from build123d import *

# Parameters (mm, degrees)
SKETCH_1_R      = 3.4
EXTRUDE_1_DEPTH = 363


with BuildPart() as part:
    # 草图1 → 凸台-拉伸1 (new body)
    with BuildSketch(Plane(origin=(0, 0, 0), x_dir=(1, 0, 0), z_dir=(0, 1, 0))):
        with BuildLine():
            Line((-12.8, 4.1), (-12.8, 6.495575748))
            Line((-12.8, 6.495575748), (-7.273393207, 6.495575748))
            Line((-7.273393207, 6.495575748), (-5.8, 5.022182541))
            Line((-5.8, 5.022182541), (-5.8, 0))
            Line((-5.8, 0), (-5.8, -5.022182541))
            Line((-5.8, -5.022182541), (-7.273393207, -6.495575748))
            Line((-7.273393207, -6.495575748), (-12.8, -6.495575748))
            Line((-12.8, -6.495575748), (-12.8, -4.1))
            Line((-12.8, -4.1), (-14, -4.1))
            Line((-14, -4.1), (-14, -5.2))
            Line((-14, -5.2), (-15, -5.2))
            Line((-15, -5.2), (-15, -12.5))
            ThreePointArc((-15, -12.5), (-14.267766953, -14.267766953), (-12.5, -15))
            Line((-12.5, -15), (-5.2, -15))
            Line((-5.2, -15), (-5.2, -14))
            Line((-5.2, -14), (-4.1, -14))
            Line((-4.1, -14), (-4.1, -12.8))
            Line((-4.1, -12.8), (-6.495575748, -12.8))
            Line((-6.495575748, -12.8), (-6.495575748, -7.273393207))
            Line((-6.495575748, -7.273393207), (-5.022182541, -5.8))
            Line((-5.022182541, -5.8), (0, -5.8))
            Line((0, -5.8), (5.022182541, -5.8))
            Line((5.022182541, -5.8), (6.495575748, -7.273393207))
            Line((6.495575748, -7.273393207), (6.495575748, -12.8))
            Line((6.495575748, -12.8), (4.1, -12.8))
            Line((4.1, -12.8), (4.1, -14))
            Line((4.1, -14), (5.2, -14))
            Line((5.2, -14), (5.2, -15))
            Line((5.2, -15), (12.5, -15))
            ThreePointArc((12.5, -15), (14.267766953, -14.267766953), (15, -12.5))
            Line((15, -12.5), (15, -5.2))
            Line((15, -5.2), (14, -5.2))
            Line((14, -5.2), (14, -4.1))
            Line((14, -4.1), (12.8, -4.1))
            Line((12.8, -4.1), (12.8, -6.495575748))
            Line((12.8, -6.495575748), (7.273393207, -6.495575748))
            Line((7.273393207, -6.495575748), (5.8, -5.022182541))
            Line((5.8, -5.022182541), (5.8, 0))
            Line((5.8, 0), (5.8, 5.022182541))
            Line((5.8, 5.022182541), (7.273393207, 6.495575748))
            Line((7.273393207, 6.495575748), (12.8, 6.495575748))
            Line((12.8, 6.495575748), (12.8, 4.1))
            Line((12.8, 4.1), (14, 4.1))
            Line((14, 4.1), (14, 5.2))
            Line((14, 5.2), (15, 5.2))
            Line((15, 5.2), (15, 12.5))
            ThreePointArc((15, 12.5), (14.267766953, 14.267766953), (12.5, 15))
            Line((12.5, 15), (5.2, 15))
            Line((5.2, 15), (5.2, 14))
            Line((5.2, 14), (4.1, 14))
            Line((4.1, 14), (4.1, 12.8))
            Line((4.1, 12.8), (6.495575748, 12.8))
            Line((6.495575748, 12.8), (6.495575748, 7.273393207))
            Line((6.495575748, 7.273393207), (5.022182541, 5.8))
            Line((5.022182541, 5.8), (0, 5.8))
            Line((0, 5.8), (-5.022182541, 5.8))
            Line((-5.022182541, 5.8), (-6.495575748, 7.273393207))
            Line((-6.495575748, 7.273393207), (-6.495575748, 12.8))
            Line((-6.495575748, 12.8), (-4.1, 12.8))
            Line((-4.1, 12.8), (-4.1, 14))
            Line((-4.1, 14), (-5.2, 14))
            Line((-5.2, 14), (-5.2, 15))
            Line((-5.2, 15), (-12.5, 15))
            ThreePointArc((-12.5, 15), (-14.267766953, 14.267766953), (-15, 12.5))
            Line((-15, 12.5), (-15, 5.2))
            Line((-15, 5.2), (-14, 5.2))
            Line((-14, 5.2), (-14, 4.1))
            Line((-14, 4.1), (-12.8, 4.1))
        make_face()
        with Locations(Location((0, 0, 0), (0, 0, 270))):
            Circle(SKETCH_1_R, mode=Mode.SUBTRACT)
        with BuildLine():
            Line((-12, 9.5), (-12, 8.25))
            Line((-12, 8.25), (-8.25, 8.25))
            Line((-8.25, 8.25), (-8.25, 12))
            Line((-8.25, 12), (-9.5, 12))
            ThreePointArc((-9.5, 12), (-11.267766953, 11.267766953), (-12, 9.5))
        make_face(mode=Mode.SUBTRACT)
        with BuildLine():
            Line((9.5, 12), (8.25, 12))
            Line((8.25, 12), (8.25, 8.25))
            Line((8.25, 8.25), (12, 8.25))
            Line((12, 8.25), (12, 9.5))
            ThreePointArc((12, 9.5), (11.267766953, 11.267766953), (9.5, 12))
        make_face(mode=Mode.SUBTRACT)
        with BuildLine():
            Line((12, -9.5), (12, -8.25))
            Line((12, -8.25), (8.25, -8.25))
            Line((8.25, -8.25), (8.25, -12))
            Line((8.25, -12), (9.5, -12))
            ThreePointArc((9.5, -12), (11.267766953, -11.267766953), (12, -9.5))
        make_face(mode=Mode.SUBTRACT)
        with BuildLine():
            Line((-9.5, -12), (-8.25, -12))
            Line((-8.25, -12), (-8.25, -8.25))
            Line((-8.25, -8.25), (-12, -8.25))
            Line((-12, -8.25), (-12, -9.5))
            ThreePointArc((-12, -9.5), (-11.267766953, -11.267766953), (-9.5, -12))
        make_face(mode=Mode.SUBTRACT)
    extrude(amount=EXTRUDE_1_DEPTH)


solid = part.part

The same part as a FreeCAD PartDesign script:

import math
import FreeCAD as App
import Part
import Sketcher

V = App.Vector
Q = App.Units.Quantity

doc = App.newDocument("Part")
params = doc.addObject("Spreadsheet::Sheet", "Params")
for row, (alias, value) in enumerate([
    ("sketch1_diameter", "6.8 mm"),
    ("sketch1_radius", "2.5 mm"),
    ("sketch1_width", "1 mm"),
    ("sketch1_width2", "1.2 mm"),
    ("sketch1_width3", "7.3 mm"),
    ("pad1_length", "363 mm"),
], start=1):
    params.set(f"A{row}", alias)
    params.set(f"B{row}", "=" + value)
    params.setAlias(f"B{row}", alias)

body = doc.addObject("PartDesign::Body", "Body")

sketch1 = body.newObject("Sketcher::SketchObject", "Sketch")
sketch1.AttachmentSupport = (doc.getObject("XZ_Plane"), [""])
sketch1.MapMode = "FlatFace"
sketch1.addGeometry(Part.LineSegment(V(-12.8, -4.1, 0), V(-12.8, -6.5, 0)), False)
sketch1.addGeometry(Part.LineSegment(V(-12.8, -6.5, 0), V(-7.3, -6.5, 0)), False)
sketch1.addGeometry(Part.LineSegment(V(-7.3, -6.5, 0), V(-5.8, -5, 0)), False)
sketch1.addGeometry(Part.LineSegment(V(-5.8, -5, 0), V(-5.8, 5, 0)), False)
sketch1.addGeometry(Part.LineSegment(V(-5.8, 5, 0), V(-7.3, 6.5, 0)), False)
sketch1.addGeometry(Part.LineSegment(V(-7.3, 6.5, 0), V(-12.8, 6.5, 0)), False)
sketch1.addGeometry(Part.LineSegment(V(-12.8, 6.5, 0), V(-12.8, 4.1, 0)), False)
sketch1.addGeometry(Part.LineSegment(V(-12.8, 4.1, 0), V(-14, 4.1, 0)), False)
sketch1.addGeometry(Part.LineSegment(V(-14, 4.1, 0), V(-14, 5.2, 0)), False)
sketch1.addGeometry(Part.LineSegment(V(-14, 5.2, 0), V(-15, 5.2, 0)), False)
sketch1.addGeometry(Part.LineSegment(V(-15, 5.2, 0), V(-15, 12.5, 0)), False)
sketch1.addGeometry(Part.ArcOfCircle(Part.Circle(V(-12.5, 12.5, 0), V(0, 0, 1), 2.5), math.radians(90), math.radians(180)), False)
sketch1.addGeometry(Part.LineSegment(V(-12.5, 15, 0), V(-5.2, 15, 0)), False)
sketch1.addGeometry(Part.LineSegment(V(-5.2, 15, 0), V(-5.2, 14, 0)), False)
sketch1.addGeometry(Part.LineSegment(V(-5.2, 14, 0), V(-4.1, 14, 0)), False)
sketch1.addGeometry(Part.LineSegment(V(-4.1, 14, 0), V(-4.1, 12.8, 0)), False)
sketch1.addGeometry(Part.LineSegment(V(-4.1, 12.8, 0), V(-6.5, 12.8, 0)), False)
sketch1.addGeometry(Part.LineSegment(V(-6.5, 12.8, 0), V(-6.5, 7.3, 0)), False)
sketch1.addGeometry(Part.LineSegment(V(-6.5, 7.3, 0), V(-5, 5.8, 0)), False)
sketch1.addGeometry(Part.LineSegment(V(-5, 5.8, 0), V(5, 5.8, 0)), False)
sketch1.addGeometry(Part.LineSegment(V(5, 5.8, 0), V(6.5, 7.3, 0)), False)
sketch1.addGeometry(Part.LineSegment(V(6.5, 7.3, 0), V(6.5, 12.8, 0)), False)
sketch1.addGeometry(Part.LineSegment(V(6.5, 12.8, 0), V(4.1, 12.8, 0)), False)
sketch1.addGeometry(Part.LineSegment(V(4.1, 12.8, 0), V(4.1, 14, 0)), False)
sketch1.addGeometry(Part.LineSegment(V(4.1, 14, 0), V(5.2, 14, 0)), False)
sketch1.addGeometry(Part.LineSegment(V(5.2, 14, 0), V(5.2, 15, 0)), False)
sketch1.addGeometry(Part.LineSegment(V(5.2, 15, 0), V(12.5, 15, 0)), False)
sketch1.addGeometry(Part.ArcOfCircle(Part.Circle(V(12.5, 12.5, 0), V(0, 0, 1), 2.5), math.radians(0), math.radians(90)), False)
sketch1.addGeometry(Part.LineSegment(V(15, 12.5, 0), V(15, 5.2, 0)), False)
sketch1.addGeometry(Part.LineSegment(V(15, 5.2, 0), V(14, 5.2, 0)), False)
sketch1.addGeometry(Part.LineSegment(V(14, 5.2, 0), V(14, 4.1, 0)), False)
sketch1.addGeometry(Part.LineSegment(V(14, 4.1, 0), V(12.8, 4.1, 0)), False)
sketch1.addGeometry(Part.LineSegment(V(12.8, 4.1, 0), V(12.8, 6.5, 0)), False)
sketch1.addGeometry(Part.LineSegment(V(12.8, 6.5, 0), V(7.3, 6.5, 0)), False)
sketch1.addGeometry(Part.LineSegment(V(7.3, 6.5, 0), V(5.8, 5, 0)), False)
sketch1.addGeometry(Part.LineSegment(V(5.8, 5, 0), V(5.8, -5, 0)), False)
sketch1.addGeometry(Part.LineSegment(V(5.8, -5, 0), V(7.3, -6.5, 0)), False)
sketch1.addGeometry(Part.LineSegment(V(7.3, -6.5, 0), V(12.8, -6.5, 0)), False)
sketch1.addGeometry(Part.LineSegment(V(12.8, -6.5, 0), V(12.8, -4.1, 0)), False)
sketch1.addGeometry(Part.LineSegment(V(12.8, -4.1, 0), V(14, -4.1, 0)), False)
sketch1.addGeometry(Part.LineSegment(V(14, -4.1, 0), V(14, -5.2, 0)), False)
sketch1.addGeometry(Part.LineSegment(V(14, -5.2, 0), V(15, -5.2, 0)), False)
sketch1.addGeometry(Part.LineSegment(V(15, -5.2, 0), V(15, -12.5, 0)), False)
sketch1.addGeometry(Part.ArcOfCircle(Part.Circle(V(12.5, -12.5, 0), V(0, 0, 1), 2.5), math.radians(-90), math.radians(0)), False)
sketch1.addGeometry(Part.LineSegment(V(12.5, -15, 0), V(5.2, -15, 0)), False)
sketch1.addGeometry(Part.LineSegment(V(5.2, -15, 0), V(5.2, -14, 0)), False)
sketch1.addGeometry(Part.LineSegment(V(5.2, -14, 0), V(4.1, -14, 0)), False)
sketch1.addGeometry(Part.LineSegment(V(4.1, -14, 0), V(4.1, -12.8, 0)), False)
sketch1.addGeometry(Part.LineSegment(V(4.1, -12.8, 0), V(6.5, -12.8, 0)), False)
sketch1.addGeometry(Part.LineSegment(V(6.5, -12.8, 0), V(6.5, -7.3, 0)), False)
sketch1.addGeometry(Part.LineSegment(V(6.5, -7.3, 0), V(5, -5.8, 0)), False)
sketch1.addGeometry(Part.LineSegment(V(5, -5.8, 0), V(-5, -5.8, 0)), False)
sketch1.addGeometry(Part.LineSegment(V(-5, -5.8, 0), V(-6.5, -7.3, 0)), False)
sketch1.addGeometry(Part.LineSegment(V(-6.5, -7.3, 0), V(-6.5, -12.8, 0)), False)
sketch1.addGeometry(Part.LineSegment(V(-6.5, -12.8, 0), V(-4.1, -12.8, 0)), False)
sketch1.addGeometry(Part.LineSegment(V(-4.1, -12.8, 0), V(-4.1, -14, 0)), False)
sketch1.addGeometry(Part.LineSegment(V(-4.1, -14, 0), V(-5.2, -14, 0)), False)
sketch1.addGeometry(Part.LineSegment(V(-5.2, -14, 0), V(-5.2, -15, 0)), False)
sketch1.addGeometry(Part.LineSegment(V(-5.2, -15, 0), V(-12.5, -15, 0)), False)
sketch1.addGeometry(Part.ArcOfCircle(Part.Circle(V(-12.5, -12.5, 0), V(0, 0, 1), 2.5), math.radians(180), math.radians(270)), False)
sketch1.addGeometry(Part.LineSegment(V(-15, -12.5, 0), V(-15, -5.2, 0)), False)
sketch1.addGeometry(Part.LineSegment(V(-15, -5.2, 0), V(-14, -5.2, 0)), False)
sketch1.addGeometry(Part.LineSegment(V(-14, -5.2, 0), V(-14, -4.1, 0)), False)
sketch1.addGeometry(Part.LineSegment(V(-14, -4.1, 0), V(-12.8, -4.1, 0)), False)
sketch1.addGeometry(Part.LineSegment(V(-8.2, 12, 0), V(-9.5, 12, 0)), False)
sketch1.addGeometry(Part.ArcOfCircle(Part.Circle(V(-9.5, 9.5, 0), V(0, 0, 1), 2.5), math.radians(90), math.radians(180)), False)
sketch1.addGeometry(Part.LineSegment(V(-12, 9.5, 0), V(-12, 8.2, 0)), False)
sketch1.addGeometry(Part.LineSegment(V(-12, 8.2, 0), V(-8.2, 8.2, 0)), False)
sketch1.addGeometry(Part.LineSegment(V(-8.2, 8.2, 0), V(-8.2, 12, 0)), False)
sketch1.addGeometry(Part.LineSegment(V(12, 8.2, 0), V(12, 9.5, 0)), False)
sketch1.addGeometry(Part.ArcOfCircle(Part.Circle(V(9.5, 9.5, 0), V(0, 0, 1), 2.5), math.radians(0), math.radians(90)), False)
sketch1.addGeometry(Part.LineSegment(V(9.5, 12, 0), V(8.2, 12, 0)), False)
sketch1.addGeometry(Part.LineSegment(V(8.2, 12, 0), V(8.2, 8.2, 0)), False)
sketch1.addGeometry(Part.LineSegment(V(8.2, 8.2, 0), V(12, 8.2, 0)), False)
sketch1.addGeometry(Part.LineSegment(V(-12, -8.2, 0), V(-12, -9.5, 0)), False)
sketch1.addGeometry(Part.ArcOfCircle(Part.Circle(V(-9.5, -9.5, 0), V(0, 0, 1), 2.5), math.radians(180), math.radians(270)), False)
sketch1.addGeometry(Part.LineSegment(V(-9.5, -12, 0), V(-8.2, -12, 0)), False)
sketch1.addGeometry(Part.LineSegment(V(-8.2, -12, 0), V(-8.2, -8.2, 0)), False)
sketch1.addGeometry(Part.LineSegment(V(-8.2, -8.2, 0), V(-12, -8.2, 0)), False)
sketch1.addGeometry(Part.Circle(V(0, 0, 0), V(0, 0, 1), 3.4), False)
sketch1.addGeometry(Part.LineSegment(V(8.2, -12, 0), V(9.5, -12, 0)), False)
sketch1.addGeometry(Part.ArcOfCircle(Part.Circle(V(9.5, -9.5, 0), V(0, 0, 1), 2.5), math.radians(-90), math.radians(0)), False)
sketch1.addGeometry(Part.LineSegment(V(12, -9.5, 0), V(12, -8.2, 0)), False)
sketch1.addGeometry(Part.LineSegment(V(12, -8.2, 0), V(8.2, -8.2, 0)), False)
sketch1.addGeometry(Part.LineSegment(V(8.2, -8.2, 0), V(8.2, -12, 0)), False)
sketch1.addConstraint(Sketcher.Constraint("Coincident", 0, 2, 1, 1))
sketch1.addConstraint(Sketcher.Constraint("Coincident", 1, 2, 2, 1))
sketch1.addConstraint(Sketcher.Constraint("Coincident", 2, 2, 3, 1))
sketch1.addConstraint(Sketcher.Constraint("Coincident", 3, 2, 4, 1))
sketch1.addConstraint(Sketcher.Constraint("Coincident", 4, 2, 5, 1))
sketch1.addConstraint(Sketcher.Constraint("Coincident", 5, 2, 6, 1))
sketch1.addConstraint(Sketcher.Constraint("Coincident", 6, 2, 7, 1))
sketch1.addConstraint(Sketcher.Constraint("Coincident", 7, 2, 8, 1))
sketch1.addConstraint(Sketcher.Constraint("Coincident", 8, 2, 9, 1))
sketch1.addConstraint(Sketcher.Constraint("Coincident", 9, 2, 10, 1))
sketch1.addConstraint(Sketcher.Constraint("Tangent", 10, 2, 11, 2))
sketch1.addConstraint(Sketcher.Constraint("Tangent", 11, 1, 12, 1))
sketch1.addConstraint(Sketcher.Constraint("Coincident", 12, 2, 13, 1))
sketch1.addConstraint(Sketcher.Constraint("Coincident", 13, 2, 14, 1))
sketch1.addConstraint(Sketcher.Constraint("Coincident", 14, 2, 15, 1))
sketch1.addConstraint(Sketcher.Constraint("Coincident", 15, 2, 16, 1))
sketch1.addConstraint(Sketcher.Constraint("Coincident", 16, 2, 17, 1))
sketch1.addConstraint(Sketcher.Constraint("Coincident", 17, 2, 18, 1))
sketch1.addConstraint(Sketcher.Constraint("Coincident", 18, 2, 19, 1))
sketch1.addConstraint(Sketcher.Constraint("Coincident", 19, 2, 20, 1))
sketch1.addConstraint(Sketcher.Constraint("Coincident", 20, 2, 21, 1))
sketch1.addConstraint(Sketcher.Constraint("Coincident", 21, 2, 22, 1))
sketch1.addConstraint(Sketcher.Constraint("Coincident", 22, 2, 23, 1))
sketch1.addConstraint(Sketcher.Constraint("Coincident", 23, 2, 24, 1))
sketch1.addConstraint(Sketcher.Constraint("Coincident", 24, 2, 25, 1))
sketch1.addConstraint(Sketcher.Constraint("Coincident", 25, 2, 26, 1))
sketch1.addConstraint(Sketcher.Constraint("Tangent", 26, 2, 27, 2))
sketch1.addConstraint(Sketcher.Constraint("Tangent", 27, 1, 28, 1))
sketch1.addConstraint(Sketcher.Constraint("Coincident", 28, 2, 29, 1))
sketch1.addConstraint(Sketcher.Constraint("Coincident", 29, 2, 30, 1))
sketch1.addConstraint(Sketcher.Constraint("Coincident", 30, 2, 31, 1))
sketch1.addConstraint(Sketcher.Constraint("Coincident", 31, 2, 32, 1))
sketch1.addConstraint(Sketcher.Constraint("Coincident", 32, 2, 33, 1))
sketch1.addConstraint(Sketcher.Constraint("Coincident", 33, 2, 34, 1))
sketch1.addConstraint(Sketcher.Constraint("Coincident", 34, 2, 35, 1))
sketch1.addConstraint(Sketcher.Constraint("Coincident", 35, 2, 36, 1))
sketch1.addConstraint(Sketcher.Constraint("Coincident", 36, 2, 37, 1))
sketch1.addConstraint(Sketcher.Constraint("Coincident", 37, 2, 38, 1))
sketch1.addConstraint(Sketcher.Constraint("Coincident", 38, 2, 39, 1))
sketch1.addConstraint(Sketcher.Constraint("Coincident", 39, 2, 40, 1))
sketch1.addConstraint(Sketcher.Constraint("Coincident", 40, 2, 41, 1))
sketch1.addConstraint(Sketcher.Constraint("Coincident", 41, 2, 42, 1))
sketch1.addConstraint(Sketcher.Constraint("Tangent", 42, 2, 43, 2))
sketch1.addConstraint(Sketcher.Constraint("Tangent", 43, 1, 44, 1))
sketch1.addConstraint(Sketcher.Constraint("Coincident", 44, 2, 45, 1))
sketch1.addConstraint(Sketcher.Constraint("Coincident", 45, 2, 46, 1))
sketch1.addConstraint(Sketcher.Constraint("Coincident", 46, 2, 47, 1))
sketch1.addConstraint(Sketcher.Constraint("Coincident", 47, 2, 48, 1))
sketch1.addConstraint(Sketcher.Constraint("Coincident", 48, 2, 49, 1))
sketch1.addConstraint(Sketcher.Constraint("Coincident", 49, 2, 50, 1))
sketch1.addConstraint(Sketcher.Constraint("Coincident", 50, 2, 51, 1))
sketch1.addConstraint(Sketcher.Constraint("Coincident", 51, 2, 52, 1))
sketch1.addConstraint(Sketcher.Constraint("Coincident", 52, 2, 53, 1))
sketch1.addConstraint(Sketcher.Constraint("Coincident", 53, 2, 54, 1))
sketch1.addConstraint(Sketcher.Constraint("Coincident", 54, 2, 55, 1))
sketch1.addConstraint(Sketcher.Constraint("Coincident", 55, 2, 56, 1))
sketch1.addConstraint(Sketcher.Constraint("Coincident", 56, 2, 57, 1))
sketch1.addConstraint(Sketcher.Constraint("Coincident", 57, 2, 58, 1))
sketch1.addConstraint(Sketcher.Constraint("Tangent", 58, 2, 59, 2))
sketch1.addConstraint(Sketcher.Constraint("Tangent", 59, 1, 60, 1))
sketch1.addConstraint(Sketcher.Constraint("Coincident", 60, 2, 61, 1))
sketch1.addConstraint(Sketcher.Constraint("Coincident", 61, 2, 62, 1))
sketch1.addConstraint(Sketcher.Constraint("Coincident", 62, 2, 63, 1))
sketch1.addConstraint(Sketcher.Constraint("Coincident", 63, 2, 0, 1))
sketch1.addConstraint(Sketcher.Constraint("Tangent", 64, 2, 65, 1))
sketch1.addConstraint(Sketcher.Constraint("Tangent", 65, 2, 66, 1))
sketch1.addConstraint(Sketcher.Constraint("Coincident", 66, 2, 67, 1))
sketch1.addConstraint(Sketcher.Constraint("Coincident", 67, 2, 68, 1))
sketch1.addConstraint(Sketcher.Constraint("Coincident", 68, 2, 64, 1))
sketch1.addConstraint(Sketcher.Constraint("Tangent", 69, 2, 70, 1))
sketch1.addConstraint(Sketcher.Constraint("Tangent", 70, 2, 71, 1))
sketch1.addConstraint(Sketcher.Constraint("Coincident", 71, 2, 72, 1))
sketch1.addConstraint(Sketcher.Constraint("Coincident", 72, 2, 73, 1))
sketch1.addConstraint(Sketcher.Constraint("Coincident", 73, 2, 69, 1))
sketch1.addConstraint(Sketcher.Constraint("Tangent", 74, 2, 75, 1))
sketch1.addConstraint(Sketcher.Constraint("Tangent", 75, 2, 76, 1))
sketch1.addConstraint(Sketcher.Constraint("Coincident", 76, 2, 77, 1))
sketch1.addConstraint(Sketcher.Constraint("Coincident", 77, 2, 78, 1))
sketch1.addConstraint(Sketcher.Constraint("Coincident", 78, 2, 74, 1))
sketch1.addConstraint(Sketcher.Constraint("Tangent", 80, 2, 81, 1))
sketch1.addConstraint(Sketcher.Constraint("Tangent", 81, 2, 82, 1))
sketch1.addConstraint(Sketcher.Constraint("Coincident", 82, 2, 83, 1))
sketch1.addConstraint(Sketcher.Constraint("Coincident", 83, 2, 84, 1))
sketch1.addConstraint(Sketcher.Constraint("Coincident", 84, 2, 80, 1))
sketch1.addConstraint(Sketcher.Constraint("Vertical", 0))
sketch1.addConstraint(Sketcher.Constraint("Horizontal", 1))
sketch1.addConstraint(Sketcher.Constraint("Vertical", 3))
sketch1.addConstraint(Sketcher.Constraint("Horizontal", 5))
sketch1.addConstraint(Sketcher.Constraint("Vertical", 6))
sketch1.addConstraint(Sketcher.Constraint("Horizontal", 7))
sketch1.addConstraint(Sketcher.Constraint("Vertical", 8))
sketch1.addConstraint(Sketcher.Constraint("Horizontal", 9))
sketch1.addConstraint(Sketcher.Constraint("Vertical", 10))
sketch1.addConstraint(Sketcher.Constraint("Horizontal", 12))
sketch1.addConstraint(Sketcher.Constraint("Vertical", 13))
sketch1.addConstraint(Sketcher.Constraint("Horizontal", 14))
sketch1.addConstraint(Sketcher.Constraint("Vertical", 15))
sketch1.addConstraint(Sketcher.Constraint("Horizontal", 16))
sketch1.addConstraint(Sketcher.Constraint("Vertical", 17))
sketch1.addConstraint(Sketcher.Constraint("Horizontal", 19))
sketch1.addConstraint(Sketcher.Constraint("Vertical", 21))
sketch1.addConstraint(Sketcher.Constraint("Horizontal", 22))
sketch1.addConstraint(Sketcher.Constraint("Vertical", 23))
sketch1.addConstraint(Sketcher.Constraint("Horizontal", 24))
sketch1.addConstraint(Sketcher.Constraint("Vertical", 25))
sketch1.addConstraint(Sketcher.Constraint("Horizontal", 26))
sketch1.addConstraint(Sketcher.Constraint("Vertical", 28))
sketch1.addConstraint(Sketcher.Constraint("Horizontal", 29))
sketch1.addConstraint(Sketcher.Constraint("Vertical", 30))
sketch1.addConstraint(Sketcher.Constraint("Horizontal", 31))
sketch1.addConstraint(Sketcher.Constraint("Vertical", 32))
sketch1.addConstraint(Sketcher.Constraint("Horizontal", 33))
sketch1.addConstraint(Sketcher.Constraint("Vertical", 35))
sketch1.addConstraint(Sketcher.Constraint("Horizontal", 37))
sketch1.addConstraint(Sketcher.Constraint("Vertical", 38))
sketch1.addConstraint(Sketcher.Constraint("Horizontal", 39))
sketch1.addConstraint(Sketcher.Constraint("Vertical", 40))
sketch1.addConstraint(Sketcher.Constraint("Horizontal", 41))
sketch1.addConstraint(Sketcher.Constraint("Vertical", 42))
sketch1.addConstraint(Sketcher.Constraint("Horizontal", 44))
sketch1.addConstraint(Sketcher.Constraint("Vertical", 45))
sketch1.addConstraint(Sketcher.Constraint("Horizontal", 46))
sketch1.addConstraint(Sketcher.Constraint("Vertical", 47))
sketch1.addConstraint(Sketcher.Constraint("Horizontal", 48))
sketch1.addConstraint(Sketcher.Constraint("Vertical", 49))
sketch1.addConstraint(Sketcher.Constraint("Horizontal", 51))
sketch1.addConstraint(Sketcher.Constraint("Vertical", 53))
sketch1.addConstraint(Sketcher.Constraint("Horizontal", 54))
sketch1.addConstraint(Sketcher.Constraint("Vertical", 55))
sketch1.addConstraint(Sketcher.Constraint("Horizontal", 56))
sketch1.addConstraint(Sketcher.Constraint("Vertical", 57))
sketch1.addConstraint(Sketcher.Constraint("Horizontal", 58))
sketch1.addConstraint(Sketcher.Constraint("Vertical", 60))
sketch1.addConstraint(Sketcher.Constraint("Horizontal", 61))
sketch1.addConstraint(Sketcher.Constraint("Vertical", 62))
sketch1.addConstraint(Sketcher.Constraint("Horizontal", 63))
sketch1.addConstraint(Sketcher.Constraint("Horizontal", 64))
sketch1.addConstraint(Sketcher.Constraint("Vertical", 66))
sketch1.addConstraint(Sketcher.Constraint("Horizontal", 67))
sketch1.addConstraint(Sketcher.Constraint("Vertical", 68))
sketch1.addConstraint(Sketcher.Constraint("Vertical", 69))
sketch1.addConstraint(Sketcher.Constraint("Horizontal", 71))
sketch1.addConstraint(Sketcher.Constraint("Vertical", 72))
sketch1.addConstraint(Sketcher.Constraint("Horizontal", 73))
sketch1.addConstraint(Sketcher.Constraint("Vertical", 74))
sketch1.addConstraint(Sketcher.Constraint("Horizontal", 76))
sketch1.addConstraint(Sketcher.Constraint("Vertical", 77))
sketch1.addConstraint(Sketcher.Constraint("Horizontal", 78))
sketch1.addConstraint(Sketcher.Constraint("Horizontal", 80))
sketch1.addConstraint(Sketcher.Constraint("Vertical", 82))
sketch1.addConstraint(Sketcher.Constraint("Horizontal", 83))
sketch1.addConstraint(Sketcher.Constraint("Vertical", 84))
sketch1.addConstraint(Sketcher.Constraint("Coincident", 79, 3, -1, 1))
sketch1.addConstraint(Sketcher.Constraint("Equal", 11, 27))
sketch1.addConstraint(Sketcher.Constraint("Equal", 27, 43))
sketch1.addConstraint(Sketcher.Constraint("Equal", 43, 59))
sketch1.addConstraint(Sketcher.Constraint("Equal", 59, 65))
sketch1.addConstraint(Sketcher.Constraint("Equal", 65, 70))
sketch1.addConstraint(Sketcher.Constraint("Equal", 70, 75))
sketch1.addConstraint(Sketcher.Constraint("Equal", 75, 81))
sketch1.addConstraint(Sketcher.Constraint("Symmetric", 11, 3, 43, 3, -1, 1))
sketch1.addConstraint(Sketcher.Constraint("Symmetric", 27, 3, 59, 3, -1, 1))
sketch1.addConstraint(Sketcher.Constraint("Symmetric", 70, 3, 75, 3, -1, 1))
sketch1.addConstraint(Sketcher.Constraint("Symmetric", 65, 3, 81, 3, -1, 1))
sketch1.addConstraint(Sketcher.Constraint("Symmetric", 0, 2, 32, 2, -1, 1))
sketch1.addConstraint(Sketcher.Constraint("Symmetric", 2, 2, 34, 2, -1, 1))
sketch1.addConstraint(Sketcher.Constraint("Symmetric", 4, 2, 36, 2, -1, 1))
sketch1.addConstraint(Sketcher.Constraint("Symmetric", 6, 2, 38, 2, -1, 1))
sketch1.addConstraint(Sketcher.Constraint("Symmetric", 8, 2, 40, 2, -1, 1))
sketch1.addConstraint(Sketcher.Constraint("Symmetric", 13, 2, 45, 2, -1, 1))
sketch1.addConstraint(Sketcher.Constraint("Symmetric", 15, 2, 47, 2, -1, 1))
sketch1.addConstraint(Sketcher.Constraint("Symmetric", 17, 2, 49, 2, -1, 1))
sketch1.addConstraint(Sketcher.Constraint("Symmetric", 18, 2, 50, 2, -1, 1))
sketch1.addConstraint(Sketcher.Constraint("Symmetric", 20, 2, 52, 2, -1, 1))
sketch1.addConstraint(Sketcher.Constraint("Symmetric", 22, 2, 54, 2, -1, 1))
sketch1.addConstraint(Sketcher.Constraint("Symmetric", 24, 2, 56, 2, -1, 1))
sketch1.addConstraint(Sketcher.Constraint("Symmetric", 29, 2, 61, 2, -1, 1))
sketch1.addConstraint(Sketcher.Constraint("Symmetric", 72, 2, 77, 2, -1, 1))
sketch1.addConstraint(Sketcher.Constraint("Symmetric", 67, 2, 83, 2, -1, 1))
sketch1.addConstraint(Sketcher.Constraint("Symmetric", 11, 3, 27, 3, -2))
sketch1.addConstraint(Sketcher.Constraint("Symmetric", 65, 3, 70, 3, -2))
sketch1.addConstraint(Sketcher.Constraint("Symmetric", 17, 2, 20, 2, -2))
sketch1.addConstraint(Sketcher.Constraint("Symmetric", 15, 2, 22, 2, -2))
sketch1.addConstraint(Sketcher.Constraint("Symmetric", 13, 2, 24, 2, -2))
sketch1.addConstraint(Sketcher.Constraint("Symmetric", 8, 2, 29, 2, -2))
sketch1.addConstraint(Sketcher.Constraint("Symmetric", 6, 2, 31, 2, -2))
sketch1.addConstraint(Sketcher.Constraint("Symmetric", 4, 2, 33, 2, -2))
sketch1.addConstraint(Sketcher.Constraint("Symmetric", 67, 2, 72, 2, -2))
sketch1.addConstraint(Sketcher.Constraint("Perpendicular", 2, 4))
sketch1.addConstraint(Sketcher.Constraint("Parallel", 4, 18))
sketch1.addConstraint(Sketcher.Constraint("Perpendicular", 18, 20))
sketch1.addConstraint(Sketcher.Constraint("Parallel", 20, 34))
sketch1.addConstraint(Sketcher.Constraint("Perpendicular", 34, 36))
sketch1.addConstraint(Sketcher.Constraint("Perpendicular", 50, 52))
sketch1.addConstraint(Sketcher.Constraint("Horizontal", 3, 2, 34, 2))
sketch1.addConstraint(Sketcher.Constraint("Horizontal", 39, 2, 62, 2))
sketch1.addConstraint(Sketcher.Constraint("Equal", 54, 0))
sketch1.addConstraint(Sketcher.Constraint("Equal", 51, 3))
sketch1.addConstraint(Sketcher.Constraint("Equal", 56, 8))
sketch1.addConstraint(Sketcher.Constraint("Equal", 58, 10))
sketch1.addConstraint(Sketcher.Constraint("Equal", 61, 13))
sketch1.addConstraint(Sketcher.Constraint("Equal", 63, 15))
sketch1.addConstraint(Sketcher.Constraint("Equal", 37, 17))
sketch1.addConstraint(Sketcher.Constraint("Equal", 80, 66))
sketch1.addConstraint(Sketcher.Constraint("Equal", 4, 18))
sketch1.addConstraint(Sketcher.Constraint("Diameter", 79, Q("6.8 mm")))
sketch1.addConstraint(Sketcher.Constraint("Radius", 11, Q("2.5 mm")))
sketch1.addConstraint(Sketcher.Constraint("DistanceX", 9, 2, 9, 1, Q("1 mm")))
sketch1.addConstraint(Sketcher.Constraint("DistanceX", 7, 2, 7, 1, Q("1.2 mm")))
sketch1.addConstraint(Sketcher.Constraint("DistanceX", 12, 1, 12, 2, Q("7.3 mm")))
sketch1.addConstraint(Sketcher.Constraint("DistanceX", 14, 1, 14, 2, Q("1.1 mm")))
sketch1.addConstraint(Sketcher.Constraint("DistanceX", 7, 2, -1, 1, Q("14 mm")))
sketch1.addConstraint(Sketcher.Constraint("DistanceY", -1, 1, 64, 2, Q("12 mm")))
sketch1.addConstraint(Sketcher.Constraint("DistanceX", 65, 2, -1, 1, Q("12 mm")))
sketch1.addConstraint(Sketcher.Constraint("DistanceX", 64, 2, 64, 1, Q("1.25 mm")))
sketch1.addConstraint(Sketcher.Constraint("DistanceX", 2, 2, -1, 1, Q("5.8 mm")))
sketch1.addConstraint(Sketcher.Constraint("DistanceX", 1, 1, 1, 2, Q("5.526607 mm")))
sketch1.addConstraint(Sketcher.Constraint("DistanceX", 16, 2, 16, 1, Q("2.395576 mm")))
sketch1.setExpression("Constraints[205]", "Params.sketch1_diameter")
sketch1.setExpression("Constraints[206]", "Params.sketch1_radius")
sketch1.setExpression("Constraints[207]", "Params.sketch1_width")
sketch1.setExpression("Constraints[208]", "Params.sketch1_width2")
sketch1.setExpression("Constraints[209]", "Params.sketch1_width3")
pad1 = body.newObject("PartDesign::Pad", "Pad")
pad1.Profile = sketch1
pad1.setExpression("Length", "Params.pad1_length")
pad1.Reversed = True

doc.recompute()
